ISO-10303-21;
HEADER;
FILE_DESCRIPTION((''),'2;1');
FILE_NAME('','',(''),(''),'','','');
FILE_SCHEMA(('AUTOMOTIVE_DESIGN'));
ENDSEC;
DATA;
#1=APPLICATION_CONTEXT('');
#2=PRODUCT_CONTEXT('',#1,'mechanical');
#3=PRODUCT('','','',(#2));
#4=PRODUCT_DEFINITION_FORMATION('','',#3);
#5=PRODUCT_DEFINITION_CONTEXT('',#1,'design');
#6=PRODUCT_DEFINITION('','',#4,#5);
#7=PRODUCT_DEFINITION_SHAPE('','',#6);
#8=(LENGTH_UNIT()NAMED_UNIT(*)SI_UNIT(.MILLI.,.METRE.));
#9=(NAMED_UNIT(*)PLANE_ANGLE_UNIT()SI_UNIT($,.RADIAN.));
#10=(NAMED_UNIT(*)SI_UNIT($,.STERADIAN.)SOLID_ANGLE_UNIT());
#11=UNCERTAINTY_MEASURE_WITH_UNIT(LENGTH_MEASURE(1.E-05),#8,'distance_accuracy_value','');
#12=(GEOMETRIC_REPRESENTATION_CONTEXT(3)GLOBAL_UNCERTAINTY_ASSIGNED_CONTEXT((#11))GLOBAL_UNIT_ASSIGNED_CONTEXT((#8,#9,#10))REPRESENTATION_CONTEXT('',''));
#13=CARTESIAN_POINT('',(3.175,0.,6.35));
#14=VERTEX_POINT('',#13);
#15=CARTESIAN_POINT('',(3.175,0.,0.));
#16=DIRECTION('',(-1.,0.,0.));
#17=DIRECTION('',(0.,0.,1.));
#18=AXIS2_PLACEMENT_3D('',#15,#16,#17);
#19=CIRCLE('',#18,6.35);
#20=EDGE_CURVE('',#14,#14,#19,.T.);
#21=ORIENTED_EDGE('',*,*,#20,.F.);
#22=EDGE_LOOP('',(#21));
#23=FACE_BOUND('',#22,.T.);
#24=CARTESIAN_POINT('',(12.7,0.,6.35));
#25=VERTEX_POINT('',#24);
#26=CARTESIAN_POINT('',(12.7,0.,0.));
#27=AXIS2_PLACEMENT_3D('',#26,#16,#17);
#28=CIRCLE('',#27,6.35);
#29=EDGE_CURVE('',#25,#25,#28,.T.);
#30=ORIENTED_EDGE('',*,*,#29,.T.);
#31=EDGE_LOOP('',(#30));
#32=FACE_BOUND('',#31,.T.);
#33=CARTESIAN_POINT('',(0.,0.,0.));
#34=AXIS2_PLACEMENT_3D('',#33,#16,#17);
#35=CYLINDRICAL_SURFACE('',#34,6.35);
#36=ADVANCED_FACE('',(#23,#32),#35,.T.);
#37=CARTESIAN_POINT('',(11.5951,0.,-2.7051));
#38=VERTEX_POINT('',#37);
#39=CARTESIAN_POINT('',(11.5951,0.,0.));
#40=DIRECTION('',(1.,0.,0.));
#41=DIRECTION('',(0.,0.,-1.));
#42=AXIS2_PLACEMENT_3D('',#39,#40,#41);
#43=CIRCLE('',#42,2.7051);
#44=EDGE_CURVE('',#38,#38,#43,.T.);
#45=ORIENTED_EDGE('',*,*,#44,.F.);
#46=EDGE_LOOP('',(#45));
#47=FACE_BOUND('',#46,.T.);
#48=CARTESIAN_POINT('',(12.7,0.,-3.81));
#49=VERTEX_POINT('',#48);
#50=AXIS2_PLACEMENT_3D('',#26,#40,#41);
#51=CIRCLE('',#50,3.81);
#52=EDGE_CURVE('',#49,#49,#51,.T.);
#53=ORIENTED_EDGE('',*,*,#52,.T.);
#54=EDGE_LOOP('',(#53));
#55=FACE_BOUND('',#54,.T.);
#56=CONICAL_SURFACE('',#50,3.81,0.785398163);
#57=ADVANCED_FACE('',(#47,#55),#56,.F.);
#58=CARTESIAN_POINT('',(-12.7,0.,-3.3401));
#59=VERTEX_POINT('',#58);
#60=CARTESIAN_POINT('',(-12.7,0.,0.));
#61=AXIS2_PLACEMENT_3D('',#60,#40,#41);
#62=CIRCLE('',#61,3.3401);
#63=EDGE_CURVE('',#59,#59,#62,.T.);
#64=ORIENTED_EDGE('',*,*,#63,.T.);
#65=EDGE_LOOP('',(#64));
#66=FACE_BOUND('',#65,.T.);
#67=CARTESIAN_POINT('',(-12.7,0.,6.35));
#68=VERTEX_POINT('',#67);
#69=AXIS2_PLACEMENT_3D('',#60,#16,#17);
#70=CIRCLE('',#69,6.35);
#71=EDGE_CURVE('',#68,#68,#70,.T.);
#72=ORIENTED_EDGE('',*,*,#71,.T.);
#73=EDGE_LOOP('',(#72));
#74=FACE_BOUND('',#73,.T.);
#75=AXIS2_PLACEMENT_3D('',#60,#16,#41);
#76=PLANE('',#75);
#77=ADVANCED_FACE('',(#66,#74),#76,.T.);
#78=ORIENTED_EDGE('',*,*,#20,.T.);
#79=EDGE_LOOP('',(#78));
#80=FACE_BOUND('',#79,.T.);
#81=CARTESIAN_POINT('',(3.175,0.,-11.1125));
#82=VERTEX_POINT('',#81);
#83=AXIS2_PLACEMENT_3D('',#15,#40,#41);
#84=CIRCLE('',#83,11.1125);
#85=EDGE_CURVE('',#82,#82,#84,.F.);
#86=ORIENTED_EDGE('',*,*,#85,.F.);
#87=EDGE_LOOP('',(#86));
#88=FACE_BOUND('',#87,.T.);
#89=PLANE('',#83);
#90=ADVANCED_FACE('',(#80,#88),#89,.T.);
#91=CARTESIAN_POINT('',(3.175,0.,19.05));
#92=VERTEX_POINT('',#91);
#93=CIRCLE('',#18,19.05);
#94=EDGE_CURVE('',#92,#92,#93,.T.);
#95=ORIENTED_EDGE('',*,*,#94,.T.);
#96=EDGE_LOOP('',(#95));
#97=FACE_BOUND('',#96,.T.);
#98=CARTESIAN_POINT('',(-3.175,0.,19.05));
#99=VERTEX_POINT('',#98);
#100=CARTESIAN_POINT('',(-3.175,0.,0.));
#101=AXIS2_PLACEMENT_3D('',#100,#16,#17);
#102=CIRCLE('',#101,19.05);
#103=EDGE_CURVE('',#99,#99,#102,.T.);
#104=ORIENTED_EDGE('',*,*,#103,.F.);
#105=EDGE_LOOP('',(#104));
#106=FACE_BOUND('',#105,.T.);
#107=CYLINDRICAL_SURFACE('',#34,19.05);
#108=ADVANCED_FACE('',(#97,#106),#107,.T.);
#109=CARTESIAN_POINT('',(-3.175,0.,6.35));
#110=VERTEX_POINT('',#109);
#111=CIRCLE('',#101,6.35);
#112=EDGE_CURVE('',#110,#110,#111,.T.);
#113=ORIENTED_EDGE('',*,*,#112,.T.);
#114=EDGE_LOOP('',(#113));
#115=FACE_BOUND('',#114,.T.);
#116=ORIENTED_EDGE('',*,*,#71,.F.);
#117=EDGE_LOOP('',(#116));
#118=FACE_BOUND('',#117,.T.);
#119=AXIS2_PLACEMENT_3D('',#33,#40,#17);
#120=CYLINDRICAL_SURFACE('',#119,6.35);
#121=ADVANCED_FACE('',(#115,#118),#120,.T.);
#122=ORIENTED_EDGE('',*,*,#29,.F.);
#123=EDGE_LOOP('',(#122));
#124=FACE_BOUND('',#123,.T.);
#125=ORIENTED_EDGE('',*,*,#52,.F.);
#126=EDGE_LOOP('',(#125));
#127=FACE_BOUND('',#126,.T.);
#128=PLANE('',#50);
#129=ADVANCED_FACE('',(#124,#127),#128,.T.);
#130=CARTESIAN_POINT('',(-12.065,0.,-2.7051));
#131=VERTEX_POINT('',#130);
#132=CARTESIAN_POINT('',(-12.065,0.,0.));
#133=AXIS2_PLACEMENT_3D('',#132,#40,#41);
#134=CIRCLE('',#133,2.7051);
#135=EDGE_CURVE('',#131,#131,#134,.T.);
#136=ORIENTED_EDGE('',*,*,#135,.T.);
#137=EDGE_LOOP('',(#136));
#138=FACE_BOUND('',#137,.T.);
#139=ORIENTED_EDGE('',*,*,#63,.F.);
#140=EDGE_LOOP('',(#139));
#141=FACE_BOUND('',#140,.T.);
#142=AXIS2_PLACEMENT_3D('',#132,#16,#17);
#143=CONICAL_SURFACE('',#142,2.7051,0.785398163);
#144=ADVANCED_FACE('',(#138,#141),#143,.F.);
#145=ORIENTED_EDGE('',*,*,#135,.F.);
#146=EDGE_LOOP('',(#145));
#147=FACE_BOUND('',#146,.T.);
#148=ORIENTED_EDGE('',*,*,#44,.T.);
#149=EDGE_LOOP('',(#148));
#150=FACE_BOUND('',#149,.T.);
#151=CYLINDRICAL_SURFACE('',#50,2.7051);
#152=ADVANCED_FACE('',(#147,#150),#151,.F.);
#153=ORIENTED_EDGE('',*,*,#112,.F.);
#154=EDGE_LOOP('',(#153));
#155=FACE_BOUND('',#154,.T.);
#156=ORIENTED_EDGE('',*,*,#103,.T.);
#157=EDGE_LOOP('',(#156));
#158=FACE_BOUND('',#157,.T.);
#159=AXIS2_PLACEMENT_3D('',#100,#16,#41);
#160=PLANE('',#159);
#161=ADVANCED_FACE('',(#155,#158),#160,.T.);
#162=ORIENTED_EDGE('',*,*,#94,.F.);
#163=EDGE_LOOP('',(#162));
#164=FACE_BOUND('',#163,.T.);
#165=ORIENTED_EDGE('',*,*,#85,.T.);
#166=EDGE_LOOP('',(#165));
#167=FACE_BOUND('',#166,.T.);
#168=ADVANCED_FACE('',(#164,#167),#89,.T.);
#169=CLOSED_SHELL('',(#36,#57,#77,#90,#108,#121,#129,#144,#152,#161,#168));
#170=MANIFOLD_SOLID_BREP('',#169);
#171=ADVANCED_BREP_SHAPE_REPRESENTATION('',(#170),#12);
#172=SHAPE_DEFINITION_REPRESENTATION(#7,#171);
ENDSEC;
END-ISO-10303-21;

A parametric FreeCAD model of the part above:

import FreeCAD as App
import Part
import Sketcher

V = App.Vector
Q = App.Units.Quantity

doc = App.newDocument("Part")
params = doc.addObject("Spreadsheet::Sheet", "Params")
for row, (alias, value) in enumerate([
    ("sketch1_width", "0.5 in"),
    ("sketch1_height", "0.25 in"),
    ("sketch1_width2", "0.375 in"),
    ("revolution_angle", "360 deg"),
    ("sketch2_width", "1 in"),
    ("sketch2_height", "0.15 in"),
    ("groove_angle", "360 deg"),
], start=1):
    params.set(f"A{row}", alias)
    params.set(f"B{row}", "=" + value)
    params.setAlias(f"B{row}", alias)

body = doc.addObject("PartDesign::Body", "Body")

sketch1 = doc.addObject("Sketcher::SketchObject", "Sketch")
body.addObject(sketch1)
sketch1.AttachmentSupport = (doc.XY_Plane, [""])
sketch1.MapMode = "FlatFace"
sketch1.addGeometry(Part.LineSegment(V(12.7, 0, 0), V(12.7, 6.3, 0)), False)
sketch1.addGeometry(Part.LineSegment(V(12.7, 6.3, 0), V(3.2, 6.3, 0)), False)
sketch1.addGeometry(Part.LineSegment(V(3.2, 6.3, 0), V(3.2, 19.1, 0)), False)
sketch1.addGeometry(Part.LineSegment(V(3.2, 19.1, 0), V(0, 19.1, 0)), False)
sketch1.addGeometry(Part.LineSegment(V(0, 19.1, 0), V(0, 0, 0)), False)
sketch1.addGeometry(Part.LineSegment(V(0, 0, 0), V(12.7, 0, 0)), False)
sketch1.addConstraint(Sketcher.Constraint("Coincident", 0, 2, 1, 1))
sketch1.addConstraint(Sketcher.Constraint("Coincident", 1, 2, 2, 1))
sketch1.addConstraint(Sketcher.Constraint("Coincident", 2, 2, 3, 1))
sketch1.addConstraint(Sketcher.Constraint("Coincident", 3, 2, 4, 1))
sketch1.addConstraint(Sketcher.Constraint("Coincident", 4, 2, 5, 1))
sketch1.addConstraint(Sketcher.Constraint("Coincident", 5, 2, 0, 1))
sketch1.addConstraint(Sketcher.Constraint("Vertical", 0))
sketch1.addConstraint(Sketcher.Constraint("Horizontal", 1))
sketch1.addConstraint(Sketcher.Constraint("Vertical", 2))
sketch1.addConstraint(Sketcher.Constraint("Horizontal", 3))
sketch1.addConstraint(Sketcher.Constraint("Vertical", 4))
sketch1.addConstraint(Sketcher.Constraint("Horizontal", 5))
sketch1.addConstraint(Sketcher.Constraint("Coincident", 4, 2, -1, 1))
sketch1.addConstraint(Sketcher.Constraint("Equal", 5, 2))
sketch1.addConstraint(Sketcher.Constraint("DistanceX", 5, 1, 5, 2, Q("0.5 in")))
sketch1.addConstraint(Sketcher.Constraint("DistanceY", 0, 1, 0, 2, Q("0.25 in")))
sketch1.addConstraint(Sketcher.Constraint("DistanceX", 1, 2, 1, 1, Q("0.375 in")))
sketch1.setExpression("Constraints[14]", "Params.sketch1_width")
sketch1.setExpression("Constraints[15]", "Params.sketch1_height")
sketch1.setExpression("Constraints[16]", "Params.sketch1_width2")
revolution = doc.addObject("PartDesign::Revolution", "Revolution")
body.addObject(revolution)
revolution.Profile = sketch1
revolution.ReferenceAxis = (sketch1, ["H_Axis"])
revolution.setExpression("Angle", "Params.revolution_angle")
doc.recompute()

mirrored = doc.addObject("PartDesign::Mirrored", "Mirrored")
body.addObject(mirrored)
mirrored.Originals = [revolution]
mirrored.MirrorPlane = (doc.YZ_Plane, [""])
body.Tip = mirrored

sketch2 = doc.addObject("Sketcher::SketchObject", "Sketch001")
body.addObject(sketch2)
sketch2.AttachmentSupport = (doc.XZ_Plane, [""])
sketch2.MapMode = "FlatFace"
sketch2.addGeometry(Part.LineSegment(V(-12.7, 0, 0), V(12.7, 0, 0)), False)
sketch2.addGeometry(Part.LineSegment(V(12.7, 0, 0), V(12.7, -3.8, 0)), False)
sketch2.addGeometry(Part.LineSegment(V(12.7, -3.8, 0), V(11.6, -2.7, 0)), False)
sketch2.addGeometry(Part.LineSegment(V(11.6, -2.7, 0), V(-12.1, -2.7, 0)), False)
sketch2.addGeometry(Part.LineSegment(V(-12.1, -2.7, 0), V(-12.7, -3.3, 0)), False)
sketch2.addGeometry(Part.LineSegment(V(-12.7, -3.3, 0), V(-12.7, 0, 0)), False)
sketch2.addConstraint(Sketcher.Constraint("Coincident", 0, 2, 1, 1))
sketch2.addConstraint(Sketcher.Constraint("Coincident", 1, 2, 2, 1))
sketch2.addConstraint(Sketcher.Constraint("Coincident", 2, 2, 3, 1))
sketch2.addConstraint(Sketcher.Constraint("Coincident", 3, 2, 4, 1))
sketch2.addConstraint(Sketcher.Constraint("Coincident", 4, 2, 5, 1))
sketch2.addConstraint(Sketcher.Constraint("Coincident", 5, 2, 0, 1))
sketch2.addConstraint(Sketcher.Constraint("Horizontal", 0))
sketch2.addConstraint(Sketcher.Constraint("Vertical", 1))
sketch2.addConstraint(Sketcher.Constraint("Horizontal", 3))
sketch2.addConstraint(Sketcher.Constraint("Vertical", 5))
sketch2.addConstraint(Sketcher.Constraint("Symmetric", 0, 2, 5, 2, -1, 1))
sketch2.addConstraint(Sketcher.Constraint("Perpendicular", 2, 4))
sketch2.addConstraint(Sketcher.Constraint("DistanceX", 0, 1, 0, 2, Q("1 in")))
sketch2.addConstraint(Sketcher.Constraint("Angle", 2, Q("135 deg")))
sketch2.addConstraint(Sketcher.Constraint("DistanceY", 1, 2, 1, 1, Q("0.15 in")))
sketch2.addConstraint(Sketcher.Constraint("DistanceX", 3, 2, 3, 1, Q("0.9315 in")))
sketch2.addConstraint(Sketcher.Constraint("DistanceY", 5, 1, 5, 2, Q("0.1315 in")))
sketch2.setExpression("Constraints[12]", "Params.sketch2_width")
sketch2.setExpression("Constraints[14]", "Params.sketch2_height")
groove = doc.addObject("PartDesign::Groove", "Groove")
body.addObject(groove)
groove.Profile = sketch2
groove.ReferenceAxis = (sketch2, ["H_Axis"])
groove.setExpression("Angle", "Params.groove_angle")

doc.recompute()
